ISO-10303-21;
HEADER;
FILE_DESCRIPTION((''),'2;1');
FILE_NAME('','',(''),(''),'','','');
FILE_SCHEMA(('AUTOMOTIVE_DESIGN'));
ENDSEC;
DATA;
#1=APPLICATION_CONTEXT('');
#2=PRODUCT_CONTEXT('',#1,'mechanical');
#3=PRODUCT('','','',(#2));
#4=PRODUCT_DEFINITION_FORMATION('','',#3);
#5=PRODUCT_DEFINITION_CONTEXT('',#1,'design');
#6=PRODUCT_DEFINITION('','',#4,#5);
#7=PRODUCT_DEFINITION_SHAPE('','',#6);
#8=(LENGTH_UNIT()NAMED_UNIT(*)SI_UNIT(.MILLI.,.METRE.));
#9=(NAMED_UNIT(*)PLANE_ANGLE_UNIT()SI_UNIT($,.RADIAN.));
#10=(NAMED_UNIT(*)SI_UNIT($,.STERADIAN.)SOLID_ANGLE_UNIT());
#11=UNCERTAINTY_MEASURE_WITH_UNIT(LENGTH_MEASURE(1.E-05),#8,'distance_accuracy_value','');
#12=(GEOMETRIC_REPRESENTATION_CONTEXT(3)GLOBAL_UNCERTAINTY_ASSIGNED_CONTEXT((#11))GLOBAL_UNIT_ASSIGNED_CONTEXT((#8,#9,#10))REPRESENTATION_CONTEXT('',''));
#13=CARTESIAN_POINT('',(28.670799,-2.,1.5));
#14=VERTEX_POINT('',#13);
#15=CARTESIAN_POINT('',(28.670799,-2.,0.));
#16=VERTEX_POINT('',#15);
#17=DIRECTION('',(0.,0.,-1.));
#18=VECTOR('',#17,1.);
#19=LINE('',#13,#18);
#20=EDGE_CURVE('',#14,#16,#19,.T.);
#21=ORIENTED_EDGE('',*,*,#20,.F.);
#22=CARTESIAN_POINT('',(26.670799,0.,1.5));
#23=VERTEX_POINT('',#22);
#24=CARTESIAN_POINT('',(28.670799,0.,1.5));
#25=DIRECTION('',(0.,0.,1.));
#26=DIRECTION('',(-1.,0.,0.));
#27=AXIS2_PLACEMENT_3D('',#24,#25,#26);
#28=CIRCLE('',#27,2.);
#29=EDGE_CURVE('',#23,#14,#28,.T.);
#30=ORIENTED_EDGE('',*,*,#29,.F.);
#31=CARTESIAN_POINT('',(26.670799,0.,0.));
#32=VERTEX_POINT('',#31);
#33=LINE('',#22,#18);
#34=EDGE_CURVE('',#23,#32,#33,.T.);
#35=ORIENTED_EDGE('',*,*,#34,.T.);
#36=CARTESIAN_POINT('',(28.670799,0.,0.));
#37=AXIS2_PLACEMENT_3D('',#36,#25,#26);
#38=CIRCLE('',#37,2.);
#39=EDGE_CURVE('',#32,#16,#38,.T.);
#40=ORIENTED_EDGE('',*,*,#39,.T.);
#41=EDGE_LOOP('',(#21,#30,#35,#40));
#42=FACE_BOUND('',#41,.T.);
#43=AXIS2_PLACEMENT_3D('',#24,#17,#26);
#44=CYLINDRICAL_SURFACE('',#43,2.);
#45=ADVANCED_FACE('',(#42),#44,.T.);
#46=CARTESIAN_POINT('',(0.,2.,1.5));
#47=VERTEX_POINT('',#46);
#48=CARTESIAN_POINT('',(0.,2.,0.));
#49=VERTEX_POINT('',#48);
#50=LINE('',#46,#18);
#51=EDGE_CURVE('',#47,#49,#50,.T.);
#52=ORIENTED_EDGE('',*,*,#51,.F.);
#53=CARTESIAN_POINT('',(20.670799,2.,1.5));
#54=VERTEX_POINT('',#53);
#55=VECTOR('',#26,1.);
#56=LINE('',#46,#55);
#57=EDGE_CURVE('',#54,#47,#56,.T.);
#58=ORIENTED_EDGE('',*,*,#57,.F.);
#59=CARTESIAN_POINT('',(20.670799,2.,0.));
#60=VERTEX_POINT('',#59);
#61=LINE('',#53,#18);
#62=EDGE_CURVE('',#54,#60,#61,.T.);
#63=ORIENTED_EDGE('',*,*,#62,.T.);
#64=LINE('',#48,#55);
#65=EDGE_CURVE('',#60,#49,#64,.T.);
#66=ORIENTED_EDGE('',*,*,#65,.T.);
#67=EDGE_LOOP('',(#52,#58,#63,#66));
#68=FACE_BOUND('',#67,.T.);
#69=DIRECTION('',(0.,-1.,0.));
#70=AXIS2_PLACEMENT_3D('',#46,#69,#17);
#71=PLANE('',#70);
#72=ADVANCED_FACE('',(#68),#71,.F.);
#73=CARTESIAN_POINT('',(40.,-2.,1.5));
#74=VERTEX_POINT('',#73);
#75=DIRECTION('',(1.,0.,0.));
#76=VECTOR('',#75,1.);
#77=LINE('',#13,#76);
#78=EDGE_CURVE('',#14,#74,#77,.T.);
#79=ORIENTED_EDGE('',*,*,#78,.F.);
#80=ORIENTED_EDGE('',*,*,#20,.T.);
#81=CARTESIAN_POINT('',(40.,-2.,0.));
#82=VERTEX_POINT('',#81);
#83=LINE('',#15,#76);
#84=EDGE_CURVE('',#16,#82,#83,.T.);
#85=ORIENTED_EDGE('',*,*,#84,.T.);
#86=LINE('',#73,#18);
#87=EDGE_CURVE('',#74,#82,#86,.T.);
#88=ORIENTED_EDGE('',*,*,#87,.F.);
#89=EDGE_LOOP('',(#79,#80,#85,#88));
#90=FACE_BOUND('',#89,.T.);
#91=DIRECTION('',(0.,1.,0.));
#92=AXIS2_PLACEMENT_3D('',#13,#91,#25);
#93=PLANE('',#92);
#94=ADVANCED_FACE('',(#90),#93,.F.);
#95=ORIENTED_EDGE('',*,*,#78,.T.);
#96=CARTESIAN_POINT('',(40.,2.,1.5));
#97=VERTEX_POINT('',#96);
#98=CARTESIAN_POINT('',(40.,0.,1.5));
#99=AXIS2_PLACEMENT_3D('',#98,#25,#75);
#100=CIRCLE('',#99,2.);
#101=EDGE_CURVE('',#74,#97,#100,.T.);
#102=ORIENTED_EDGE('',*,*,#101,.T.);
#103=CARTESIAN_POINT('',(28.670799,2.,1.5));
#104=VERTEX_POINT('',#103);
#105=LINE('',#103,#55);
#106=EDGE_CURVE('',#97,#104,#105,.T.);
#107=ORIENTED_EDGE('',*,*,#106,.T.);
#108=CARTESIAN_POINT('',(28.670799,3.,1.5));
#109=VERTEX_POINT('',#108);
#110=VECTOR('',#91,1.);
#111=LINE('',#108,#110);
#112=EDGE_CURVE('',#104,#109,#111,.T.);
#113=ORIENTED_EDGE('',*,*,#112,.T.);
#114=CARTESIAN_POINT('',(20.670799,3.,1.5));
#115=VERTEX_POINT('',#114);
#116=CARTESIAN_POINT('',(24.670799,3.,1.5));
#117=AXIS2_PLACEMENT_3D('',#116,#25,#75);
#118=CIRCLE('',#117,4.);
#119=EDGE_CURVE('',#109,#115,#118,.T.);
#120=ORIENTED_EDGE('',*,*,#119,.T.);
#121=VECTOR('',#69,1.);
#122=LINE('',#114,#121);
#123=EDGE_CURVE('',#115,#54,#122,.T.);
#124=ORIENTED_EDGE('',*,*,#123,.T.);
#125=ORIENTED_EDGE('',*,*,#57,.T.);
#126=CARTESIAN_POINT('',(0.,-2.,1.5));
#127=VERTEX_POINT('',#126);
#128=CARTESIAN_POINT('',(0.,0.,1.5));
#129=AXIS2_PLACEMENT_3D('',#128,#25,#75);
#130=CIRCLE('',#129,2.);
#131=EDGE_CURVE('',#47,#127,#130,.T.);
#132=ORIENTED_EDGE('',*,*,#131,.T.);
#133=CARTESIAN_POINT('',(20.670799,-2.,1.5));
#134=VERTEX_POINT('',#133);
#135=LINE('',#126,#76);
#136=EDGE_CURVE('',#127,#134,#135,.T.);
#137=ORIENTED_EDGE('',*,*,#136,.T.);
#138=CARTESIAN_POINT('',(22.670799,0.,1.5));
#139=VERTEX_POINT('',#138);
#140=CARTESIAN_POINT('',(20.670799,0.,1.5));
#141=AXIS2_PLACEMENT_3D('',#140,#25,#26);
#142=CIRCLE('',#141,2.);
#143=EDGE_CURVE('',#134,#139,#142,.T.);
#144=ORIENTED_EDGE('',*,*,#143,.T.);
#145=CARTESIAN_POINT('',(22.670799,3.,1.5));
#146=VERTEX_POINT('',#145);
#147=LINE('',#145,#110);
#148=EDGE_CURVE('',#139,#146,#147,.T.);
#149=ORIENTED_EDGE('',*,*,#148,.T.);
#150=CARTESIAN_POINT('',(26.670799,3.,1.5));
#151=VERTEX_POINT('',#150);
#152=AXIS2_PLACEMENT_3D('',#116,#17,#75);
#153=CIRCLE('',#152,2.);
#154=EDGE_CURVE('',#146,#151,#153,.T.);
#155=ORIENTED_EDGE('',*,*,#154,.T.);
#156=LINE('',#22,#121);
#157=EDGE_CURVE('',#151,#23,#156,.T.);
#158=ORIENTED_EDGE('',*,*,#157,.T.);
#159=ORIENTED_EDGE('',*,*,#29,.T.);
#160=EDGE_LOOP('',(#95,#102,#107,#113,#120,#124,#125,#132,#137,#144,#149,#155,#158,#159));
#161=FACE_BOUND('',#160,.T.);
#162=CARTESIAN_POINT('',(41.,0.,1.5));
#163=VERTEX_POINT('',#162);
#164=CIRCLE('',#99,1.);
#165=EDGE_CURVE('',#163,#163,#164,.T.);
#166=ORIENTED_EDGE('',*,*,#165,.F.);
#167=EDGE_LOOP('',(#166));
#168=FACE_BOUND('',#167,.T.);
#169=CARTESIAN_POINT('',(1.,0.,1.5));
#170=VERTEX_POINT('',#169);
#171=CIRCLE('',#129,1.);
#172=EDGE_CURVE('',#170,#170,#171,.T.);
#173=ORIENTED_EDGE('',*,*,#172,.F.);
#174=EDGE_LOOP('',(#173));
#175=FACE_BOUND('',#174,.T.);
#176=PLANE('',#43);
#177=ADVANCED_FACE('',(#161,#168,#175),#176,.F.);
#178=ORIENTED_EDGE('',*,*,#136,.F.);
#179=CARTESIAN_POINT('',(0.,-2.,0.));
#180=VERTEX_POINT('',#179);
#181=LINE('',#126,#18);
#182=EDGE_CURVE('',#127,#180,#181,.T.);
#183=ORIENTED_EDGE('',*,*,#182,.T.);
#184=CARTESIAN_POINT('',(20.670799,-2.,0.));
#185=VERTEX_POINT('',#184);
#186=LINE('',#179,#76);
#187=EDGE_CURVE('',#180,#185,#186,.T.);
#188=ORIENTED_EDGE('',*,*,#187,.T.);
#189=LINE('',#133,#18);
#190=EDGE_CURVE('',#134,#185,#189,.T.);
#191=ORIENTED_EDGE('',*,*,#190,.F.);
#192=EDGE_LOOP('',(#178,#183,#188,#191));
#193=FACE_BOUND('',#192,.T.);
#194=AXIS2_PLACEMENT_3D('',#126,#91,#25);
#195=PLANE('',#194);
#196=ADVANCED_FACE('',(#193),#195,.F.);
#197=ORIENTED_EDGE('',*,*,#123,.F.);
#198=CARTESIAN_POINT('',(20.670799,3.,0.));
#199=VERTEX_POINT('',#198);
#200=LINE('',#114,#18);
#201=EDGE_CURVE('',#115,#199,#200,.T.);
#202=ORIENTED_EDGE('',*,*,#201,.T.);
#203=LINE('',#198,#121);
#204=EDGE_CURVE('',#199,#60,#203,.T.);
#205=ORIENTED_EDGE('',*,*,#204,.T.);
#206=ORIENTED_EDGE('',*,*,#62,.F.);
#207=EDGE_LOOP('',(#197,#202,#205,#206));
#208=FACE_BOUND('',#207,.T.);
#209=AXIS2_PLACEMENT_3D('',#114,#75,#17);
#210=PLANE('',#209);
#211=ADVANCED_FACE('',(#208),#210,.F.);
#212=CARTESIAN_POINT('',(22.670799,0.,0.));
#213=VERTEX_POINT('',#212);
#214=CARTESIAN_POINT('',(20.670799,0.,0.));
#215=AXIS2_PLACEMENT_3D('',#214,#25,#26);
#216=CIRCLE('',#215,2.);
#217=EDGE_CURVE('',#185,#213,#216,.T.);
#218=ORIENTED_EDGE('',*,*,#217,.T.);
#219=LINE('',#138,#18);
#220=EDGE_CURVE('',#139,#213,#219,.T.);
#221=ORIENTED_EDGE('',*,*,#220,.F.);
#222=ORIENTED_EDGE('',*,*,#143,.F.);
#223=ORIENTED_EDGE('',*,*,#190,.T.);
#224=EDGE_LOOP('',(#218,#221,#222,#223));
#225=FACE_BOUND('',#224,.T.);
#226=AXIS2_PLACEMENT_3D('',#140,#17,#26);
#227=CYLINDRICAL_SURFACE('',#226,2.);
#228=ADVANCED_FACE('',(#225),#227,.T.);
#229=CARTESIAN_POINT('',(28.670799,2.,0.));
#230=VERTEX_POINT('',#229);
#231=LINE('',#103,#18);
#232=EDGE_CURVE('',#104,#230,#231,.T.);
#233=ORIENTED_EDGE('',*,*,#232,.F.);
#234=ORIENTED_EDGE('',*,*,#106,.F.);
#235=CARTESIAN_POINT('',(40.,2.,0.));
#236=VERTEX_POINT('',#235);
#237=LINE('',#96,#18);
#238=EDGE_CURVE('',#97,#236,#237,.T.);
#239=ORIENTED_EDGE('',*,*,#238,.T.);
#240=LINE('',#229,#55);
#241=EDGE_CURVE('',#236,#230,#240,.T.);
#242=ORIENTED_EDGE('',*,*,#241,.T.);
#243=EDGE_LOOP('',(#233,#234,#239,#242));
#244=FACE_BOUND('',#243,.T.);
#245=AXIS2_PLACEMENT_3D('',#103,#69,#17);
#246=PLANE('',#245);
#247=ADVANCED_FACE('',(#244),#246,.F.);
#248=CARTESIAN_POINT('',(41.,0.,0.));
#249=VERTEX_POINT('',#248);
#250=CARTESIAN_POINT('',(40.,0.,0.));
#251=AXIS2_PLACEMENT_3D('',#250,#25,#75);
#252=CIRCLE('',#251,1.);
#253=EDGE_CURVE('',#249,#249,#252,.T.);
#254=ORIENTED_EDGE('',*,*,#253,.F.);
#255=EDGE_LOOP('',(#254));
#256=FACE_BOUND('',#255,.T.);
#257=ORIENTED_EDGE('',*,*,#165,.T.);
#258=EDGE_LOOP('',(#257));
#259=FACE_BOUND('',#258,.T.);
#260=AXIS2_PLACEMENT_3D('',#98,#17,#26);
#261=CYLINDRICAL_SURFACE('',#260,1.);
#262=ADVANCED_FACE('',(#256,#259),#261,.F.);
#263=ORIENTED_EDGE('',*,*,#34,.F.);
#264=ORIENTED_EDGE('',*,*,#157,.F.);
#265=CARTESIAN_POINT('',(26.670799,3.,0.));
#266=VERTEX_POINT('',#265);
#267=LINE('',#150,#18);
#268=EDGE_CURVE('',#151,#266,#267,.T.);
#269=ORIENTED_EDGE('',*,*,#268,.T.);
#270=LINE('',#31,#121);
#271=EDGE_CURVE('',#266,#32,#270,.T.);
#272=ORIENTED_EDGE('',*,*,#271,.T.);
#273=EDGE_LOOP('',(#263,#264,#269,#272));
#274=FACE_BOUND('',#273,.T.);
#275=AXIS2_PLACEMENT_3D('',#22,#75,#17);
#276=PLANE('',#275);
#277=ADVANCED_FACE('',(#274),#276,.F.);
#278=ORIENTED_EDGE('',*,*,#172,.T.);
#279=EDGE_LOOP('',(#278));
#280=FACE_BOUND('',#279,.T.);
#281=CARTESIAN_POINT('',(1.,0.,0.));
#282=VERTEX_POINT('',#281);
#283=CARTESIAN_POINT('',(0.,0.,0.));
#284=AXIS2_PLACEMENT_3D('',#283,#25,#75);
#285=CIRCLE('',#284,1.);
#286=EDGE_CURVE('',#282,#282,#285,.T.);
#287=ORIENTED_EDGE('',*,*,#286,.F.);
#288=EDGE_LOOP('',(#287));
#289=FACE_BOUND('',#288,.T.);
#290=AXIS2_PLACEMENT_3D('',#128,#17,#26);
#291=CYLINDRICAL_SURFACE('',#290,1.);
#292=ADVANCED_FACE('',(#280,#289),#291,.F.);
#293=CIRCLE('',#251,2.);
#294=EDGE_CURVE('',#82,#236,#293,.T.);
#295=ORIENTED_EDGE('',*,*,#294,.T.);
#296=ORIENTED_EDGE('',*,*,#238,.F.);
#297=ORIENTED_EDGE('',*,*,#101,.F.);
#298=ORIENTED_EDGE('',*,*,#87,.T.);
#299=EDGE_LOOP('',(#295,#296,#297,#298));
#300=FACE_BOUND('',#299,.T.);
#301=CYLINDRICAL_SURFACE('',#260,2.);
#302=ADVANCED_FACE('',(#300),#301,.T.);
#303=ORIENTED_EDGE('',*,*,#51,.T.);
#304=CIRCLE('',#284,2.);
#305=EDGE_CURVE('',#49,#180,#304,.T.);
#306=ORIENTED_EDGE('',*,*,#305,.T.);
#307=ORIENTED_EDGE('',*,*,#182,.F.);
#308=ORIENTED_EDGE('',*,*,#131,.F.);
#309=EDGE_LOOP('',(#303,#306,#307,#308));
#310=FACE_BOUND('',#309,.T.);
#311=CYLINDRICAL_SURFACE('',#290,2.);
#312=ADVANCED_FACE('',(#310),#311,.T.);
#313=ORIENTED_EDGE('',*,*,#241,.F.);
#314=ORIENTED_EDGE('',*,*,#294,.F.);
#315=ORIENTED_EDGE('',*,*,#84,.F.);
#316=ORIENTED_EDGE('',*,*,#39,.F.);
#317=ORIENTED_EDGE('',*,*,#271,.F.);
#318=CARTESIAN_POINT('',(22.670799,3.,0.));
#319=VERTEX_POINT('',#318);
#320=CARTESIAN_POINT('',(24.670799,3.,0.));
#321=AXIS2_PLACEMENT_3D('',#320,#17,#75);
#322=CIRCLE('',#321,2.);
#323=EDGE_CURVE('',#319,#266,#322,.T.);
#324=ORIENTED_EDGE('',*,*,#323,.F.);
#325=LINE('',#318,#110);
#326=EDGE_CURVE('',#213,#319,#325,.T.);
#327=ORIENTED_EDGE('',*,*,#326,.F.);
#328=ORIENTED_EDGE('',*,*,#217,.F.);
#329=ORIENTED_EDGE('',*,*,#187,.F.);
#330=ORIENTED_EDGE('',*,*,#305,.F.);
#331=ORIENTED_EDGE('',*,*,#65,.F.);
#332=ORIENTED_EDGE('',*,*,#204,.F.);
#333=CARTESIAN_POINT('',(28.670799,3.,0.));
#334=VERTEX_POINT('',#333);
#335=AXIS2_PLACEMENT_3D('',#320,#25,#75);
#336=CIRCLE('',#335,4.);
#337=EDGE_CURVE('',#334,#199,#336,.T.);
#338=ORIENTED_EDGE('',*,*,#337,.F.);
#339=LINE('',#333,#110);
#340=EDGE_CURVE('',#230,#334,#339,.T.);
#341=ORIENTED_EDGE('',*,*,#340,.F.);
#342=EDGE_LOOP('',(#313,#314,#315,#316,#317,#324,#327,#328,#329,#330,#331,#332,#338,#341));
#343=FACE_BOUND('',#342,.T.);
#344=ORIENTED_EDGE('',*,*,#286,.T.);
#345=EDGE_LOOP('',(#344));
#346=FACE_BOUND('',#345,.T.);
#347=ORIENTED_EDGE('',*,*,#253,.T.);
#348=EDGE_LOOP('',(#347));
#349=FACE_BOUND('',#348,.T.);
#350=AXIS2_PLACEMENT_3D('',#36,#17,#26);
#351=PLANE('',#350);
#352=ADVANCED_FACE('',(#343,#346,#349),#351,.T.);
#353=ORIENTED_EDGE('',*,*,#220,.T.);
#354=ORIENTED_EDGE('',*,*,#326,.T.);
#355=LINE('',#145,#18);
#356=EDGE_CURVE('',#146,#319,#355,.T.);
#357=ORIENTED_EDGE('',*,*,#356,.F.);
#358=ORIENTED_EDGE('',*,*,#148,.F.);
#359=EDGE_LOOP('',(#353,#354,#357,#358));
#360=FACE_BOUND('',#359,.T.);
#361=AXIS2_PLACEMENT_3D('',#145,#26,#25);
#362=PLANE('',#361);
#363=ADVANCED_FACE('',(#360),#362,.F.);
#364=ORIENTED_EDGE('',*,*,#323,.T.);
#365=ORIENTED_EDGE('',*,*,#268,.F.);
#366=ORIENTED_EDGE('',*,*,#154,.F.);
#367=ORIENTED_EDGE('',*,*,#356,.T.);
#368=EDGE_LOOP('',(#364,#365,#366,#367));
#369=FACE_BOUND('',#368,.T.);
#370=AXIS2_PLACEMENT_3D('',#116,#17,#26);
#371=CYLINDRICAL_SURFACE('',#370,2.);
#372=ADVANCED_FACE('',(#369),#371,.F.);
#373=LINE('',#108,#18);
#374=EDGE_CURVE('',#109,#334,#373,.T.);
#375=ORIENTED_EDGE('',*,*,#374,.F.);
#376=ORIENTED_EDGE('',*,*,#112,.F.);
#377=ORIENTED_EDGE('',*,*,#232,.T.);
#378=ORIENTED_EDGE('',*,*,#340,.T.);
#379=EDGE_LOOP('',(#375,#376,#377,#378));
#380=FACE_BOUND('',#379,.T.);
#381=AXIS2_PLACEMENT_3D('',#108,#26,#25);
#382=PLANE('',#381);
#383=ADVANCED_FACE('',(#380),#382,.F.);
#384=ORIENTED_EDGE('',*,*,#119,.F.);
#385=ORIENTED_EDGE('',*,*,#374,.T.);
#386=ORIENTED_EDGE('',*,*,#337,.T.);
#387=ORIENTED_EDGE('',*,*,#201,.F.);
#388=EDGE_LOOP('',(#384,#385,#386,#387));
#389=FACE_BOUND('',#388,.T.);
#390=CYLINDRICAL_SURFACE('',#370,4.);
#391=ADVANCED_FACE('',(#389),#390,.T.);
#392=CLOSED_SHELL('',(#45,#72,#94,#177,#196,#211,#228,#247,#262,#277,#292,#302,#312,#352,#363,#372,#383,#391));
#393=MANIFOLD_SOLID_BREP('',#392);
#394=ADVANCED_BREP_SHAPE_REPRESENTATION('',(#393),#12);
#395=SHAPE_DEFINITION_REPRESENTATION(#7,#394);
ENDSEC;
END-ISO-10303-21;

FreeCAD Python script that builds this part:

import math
import FreeCAD as App
import Part
import Sketcher
Q = App.Units.Quantity

doc = App.newDocument("Part")
body = doc.addObject("PartDesign::Body", "Body")

# Sketch on XY plane
sketch1 = body.newObject("Sketcher::SketchObject", "Sketch")
sketch1.AttachmentSupport = (doc.getObject("XY_Plane"), [""])
sketch1.MapMode = "FlatFace"
sketch1.addGeometry(Part.LineSegment(App.Vector(40, 2, 0), App.Vector(28.7, 2, 0)), False)
sketch1.addGeometry(Part.LineSegment(App.Vector(28.7, 2, 0), App.Vector(28.7, 3, 0)), False)
sketch1.addGeometry(Part.ArcOfCircle(Part.Circle(App.Vector(24.7, 3, 0), App.Vector(0, 0, 1), 4), math.radians(0), math.radians(180)), False)
sketch1.addGeometry(Part.LineSegment(App.Vector(20.7, 3, 0), App.Vector(20.7, 2, 0)), False)
sketch1.addGeometry(Part.LineSegment(App.Vector(20.7, 2, 0), App.Vector(0, 2, 0)), False)
sketch1.addGeometry(Part.ArcOfCircle(Part.Circle(App.Vector(0, 0, 0), App.Vector(0, 0, 1), 2), math.radians(90), math.radians(270)), False)
sketch1.addGeometry(Part.LineSegment(App.Vector(0, -2, 0), App.Vector(20.7, -2, 0)), False)
sketch1.addGeometry(Part.ArcOfCircle(Part.Circle(App.Vector(20.7, 0, 0), App.Vector(0, 0, 1), 2), math.radians(-90), math.radians(0)), False)
sketch1.addGeometry(Part.LineSegment(App.Vector(22.7, 0, 0), App.Vector(22.7, 3, 0)), False)
sketch1.addGeometry(Part.ArcOfCircle(Part.Circle(App.Vector(24.7, 3, 0), App.Vector(0, 0, 1), 2), math.radians(0), math.radians(180)), False)
sketch1.addGeometry(Part.LineSegment(App.Vector(26.7, 3, 0), App.Vector(26.7, 0, 0)), False)
sketch1.addGeometry(Part.ArcOfCircle(Part.Circle(App.Vector(28.7, 0, 0), App.Vector(0, 0, 1), 2), math.radians(180), math.radians(270)), False)
sketch1.addGeometry(Part.LineSegment(App.Vector(28.7, -2, 0), App.Vector(40, -2, 0)), False)
sketch1.addGeometry(Part.ArcOfCircle(Part.Circle(App.Vector(40, 0, 0), App.Vector(0, 0, 1), 2), math.radians(-90), math.radians(90)), False)
sketch1.addGeometry(Part.Circle(App.Vector(40, 0, 0), App.Vector(0, 0, 1), 1), False)
sketch1.addGeometry(Part.Circle(App.Vector(0, 0, 0), App.Vector(0, 0, 1), 1), False)
sketch1.addConstraint(Sketcher.Constraint("Coincident", 0, 2, 1, 1))
sketch1.addConstraint(Sketcher.Constraint("Tangent", 1, 2, 2, 1))
sketch1.addConstraint(Sketcher.Constraint("Tangent", 2, 2, 3, 1))
sketch1.addConstraint(Sketcher.Constraint("Coincident", 3, 2, 4, 1))
sketch1.addConstraint(Sketcher.Constraint("Tangent", 4, 2, 5, 1))
sketch1.addConstraint(Sketcher.Constraint("Tangent", 5, 2, 6, 1))
sketch1.addConstraint(Sketcher.Constraint("Tangent", 6, 2, 7, 1))
sketch1.addConstraint(Sketcher.Constraint("Tangent", 7, 2, 8, 1))
sketch1.addConstraint(Sketcher.Constraint("Tangent", 8, 2, 9, 2))
sketch1.addConstraint(Sketcher.Constraint("Tangent", 9, 1, 10, 1))
sketch1.addConstraint(Sketcher.Constraint("Tangent", 10, 2, 11, 1))
sketch1.addConstraint(Sketcher.Constraint("Tangent", 11, 2, 12, 1))
sketch1.addConstraint(Sketcher.Constraint("Tangent", 12, 2, 13, 1))
sketch1.addConstraint(Sketcher.Constraint("Tangent", 13, 2, 0, 1))
sketch1.addConstraint(Sketcher.Constraint("Horizontal", 0))
sketch1.addConstraint(Sketcher.Constraint("Vertical", 1))
sketch1.addConstraint(Sketcher.Constraint("Vertical", 3))
sketch1.addConstraint(Sketcher.Constraint("Horizontal", 4))
sketch1.addConstraint(Sketcher.Constraint("Horizontal", 6))
sketch1.addConstraint(Sketcher.Constraint("Vertical", 8))
sketch1.addConstraint(Sketcher.Constraint("Vertical", 10))
sketch1.addConstraint(Sketcher.Constraint("Horizontal", 12))
sketch1.addConstraint(Sketcher.Constraint("Coincident", 5, 3, -1, 1))
sketch1.addConstraint(Sketcher.Constraint("Coincident", 15, 3, -1, 1))
sketch1.addConstraint(Sketcher.Constraint("Coincident", 9, 3, 2, 3))
sketch1.addConstraint(Sketcher.Constraint("Coincident", 14, 3, 13, 3))
sketch1.addConstraint(Sketcher.Constraint("Equal", 5, 7))
sketch1.addConstraint(Sketcher.Constraint("Equal", 7, 9))
sketch1.addConstraint(Sketcher.Constraint("Equal", 9, 11))
sketch1.addConstraint(Sketcher.Constraint("Equal", 11, 13))
sketch1.addConstraint(Sketcher.Constraint("Equal", 14, 15))
sketch1.addConstraint(Sketcher.Constraint("Symmetric", 0, 2, 11, 2, -1))
sketch1.addConstraint(Sketcher.Constraint("Diameter", 14, Q("2 mm")))
sketch1.addConstraint(Sketcher.Constraint("Radius", 2, Q("4 mm")))
sketch1.addConstraint(Sketcher.Constraint("DistanceY", 1, 1, 1, 2, Q("1 mm")))
sketch1.addConstraint(Sketcher.Constraint("DistanceX", -1, 1, 13, 3, Q("40 mm")))
sketch1.addConstraint(Sketcher.Constraint("DistanceX", 0, 2, 0, 1, Q("11.329201 mm")))
pad1 = body.newObject("PartDesign::Pad", "Pad")
pad1.Profile = sketch1
pad1.Length = 1.5

doc.recompute()
